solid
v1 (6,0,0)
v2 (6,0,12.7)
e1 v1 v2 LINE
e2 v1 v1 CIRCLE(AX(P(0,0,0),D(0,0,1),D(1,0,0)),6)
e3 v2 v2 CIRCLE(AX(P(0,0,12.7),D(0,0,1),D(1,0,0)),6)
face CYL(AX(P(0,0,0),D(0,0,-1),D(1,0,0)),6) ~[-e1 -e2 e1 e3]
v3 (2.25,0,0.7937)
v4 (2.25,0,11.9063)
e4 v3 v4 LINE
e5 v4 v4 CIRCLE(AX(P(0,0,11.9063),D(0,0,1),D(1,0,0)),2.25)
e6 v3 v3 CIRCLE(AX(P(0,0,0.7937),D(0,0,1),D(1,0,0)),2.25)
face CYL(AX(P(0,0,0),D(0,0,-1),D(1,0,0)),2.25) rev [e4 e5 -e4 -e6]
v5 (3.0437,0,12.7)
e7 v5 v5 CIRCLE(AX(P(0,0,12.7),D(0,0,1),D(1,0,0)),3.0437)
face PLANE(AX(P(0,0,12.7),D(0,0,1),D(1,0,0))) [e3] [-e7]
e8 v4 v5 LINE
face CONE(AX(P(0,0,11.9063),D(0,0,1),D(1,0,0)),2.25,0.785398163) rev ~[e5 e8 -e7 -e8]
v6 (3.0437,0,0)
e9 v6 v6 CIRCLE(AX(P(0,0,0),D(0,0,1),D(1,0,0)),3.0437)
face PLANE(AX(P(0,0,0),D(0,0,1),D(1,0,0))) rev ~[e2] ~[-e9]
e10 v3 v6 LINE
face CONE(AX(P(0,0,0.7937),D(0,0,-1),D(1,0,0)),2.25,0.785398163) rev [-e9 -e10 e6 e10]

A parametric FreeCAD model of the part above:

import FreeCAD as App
import Part
import Sketcher

V = App.Vector


def edges_at(feature, points):
    """Names of the edges that pass closest to the given points."""
    edges = feature.Shape.Edges
    near = lambda p: min(range(len(edges)), key=lambda i: edges[i].distToShape(Part.Vertex(*p))[0])
    return sorted({f"Edge{near(p) + 1}" for p in points})

doc = App.newDocument("Part")
params = doc.addObject("Spreadsheet::Sheet", "Params")
for row, (alias, value) in enumerate([
    ("sketch1_diameter", "12 mm"),
    ("sketch1_diameter2", "4.5 mm"),
    ("pad1_length", "12.7 mm"),
    ("chamfer_size", "0.7937 mm"),
], start=1):
    params.set(f"A{row}", alias)
    params.set(f"B{row}", "=" + value)
    params.setAlias(f"B{row}", alias)

body = doc.addObject("PartDesign::Body", "Body")

# Sketch on XY plane
sketch1 = doc.addObject("Sketcher::SketchObject", "Sketch")
body.addObject(sketch1)
sketch1.AttachmentSupport = (doc.XY_Plane, [""])
sketch1.MapMode = "FlatFace"
sketch1.addGeometry(Part.Circle(V(0, 0, 0), V(0, 0, 1), 6), False)
sketch1.addGeometry(Part.Circle(V(0, 0, 0), V(0, 0, 1), 2.2), False)
sketch1.addConstraint(Sketcher.Constraint("Coincident", 0, 3, -1, 1))
sketch1.addConstraint(Sketcher.Constraint("Coincident", 1, 3, -1, 1))
sketch1.addConstraint(Sketcher.Constraint("Diameter", 0, 12.0))
sketch1.addConstraint(Sketcher.Constraint("Diameter", 1, 4.5))
sketch1.setExpression("Constraints[2]", "Params.sketch1_diameter")
sketch1.setExpression("Constraints[3]", "Params.sketch1_diameter2")
pad1 = doc.addObject("PartDesign::Pad", "Pad")
body.addObject(pad1)
pad1.Profile = sketch1
pad1.setExpression("Length", "Params.pad1_length")
doc.recompute()

chamfer = doc.addObject("PartDesign::Chamfer", "Chamfer")
body.addObject(chamfer)
chamfer.Base = (pad1, edges_at(pad1, [(-2.25, 0, 12.7), (-2.25, 0, 0)]))
chamfer.setExpression("Size", "Params.chamfer_size")

doc.recompute()
